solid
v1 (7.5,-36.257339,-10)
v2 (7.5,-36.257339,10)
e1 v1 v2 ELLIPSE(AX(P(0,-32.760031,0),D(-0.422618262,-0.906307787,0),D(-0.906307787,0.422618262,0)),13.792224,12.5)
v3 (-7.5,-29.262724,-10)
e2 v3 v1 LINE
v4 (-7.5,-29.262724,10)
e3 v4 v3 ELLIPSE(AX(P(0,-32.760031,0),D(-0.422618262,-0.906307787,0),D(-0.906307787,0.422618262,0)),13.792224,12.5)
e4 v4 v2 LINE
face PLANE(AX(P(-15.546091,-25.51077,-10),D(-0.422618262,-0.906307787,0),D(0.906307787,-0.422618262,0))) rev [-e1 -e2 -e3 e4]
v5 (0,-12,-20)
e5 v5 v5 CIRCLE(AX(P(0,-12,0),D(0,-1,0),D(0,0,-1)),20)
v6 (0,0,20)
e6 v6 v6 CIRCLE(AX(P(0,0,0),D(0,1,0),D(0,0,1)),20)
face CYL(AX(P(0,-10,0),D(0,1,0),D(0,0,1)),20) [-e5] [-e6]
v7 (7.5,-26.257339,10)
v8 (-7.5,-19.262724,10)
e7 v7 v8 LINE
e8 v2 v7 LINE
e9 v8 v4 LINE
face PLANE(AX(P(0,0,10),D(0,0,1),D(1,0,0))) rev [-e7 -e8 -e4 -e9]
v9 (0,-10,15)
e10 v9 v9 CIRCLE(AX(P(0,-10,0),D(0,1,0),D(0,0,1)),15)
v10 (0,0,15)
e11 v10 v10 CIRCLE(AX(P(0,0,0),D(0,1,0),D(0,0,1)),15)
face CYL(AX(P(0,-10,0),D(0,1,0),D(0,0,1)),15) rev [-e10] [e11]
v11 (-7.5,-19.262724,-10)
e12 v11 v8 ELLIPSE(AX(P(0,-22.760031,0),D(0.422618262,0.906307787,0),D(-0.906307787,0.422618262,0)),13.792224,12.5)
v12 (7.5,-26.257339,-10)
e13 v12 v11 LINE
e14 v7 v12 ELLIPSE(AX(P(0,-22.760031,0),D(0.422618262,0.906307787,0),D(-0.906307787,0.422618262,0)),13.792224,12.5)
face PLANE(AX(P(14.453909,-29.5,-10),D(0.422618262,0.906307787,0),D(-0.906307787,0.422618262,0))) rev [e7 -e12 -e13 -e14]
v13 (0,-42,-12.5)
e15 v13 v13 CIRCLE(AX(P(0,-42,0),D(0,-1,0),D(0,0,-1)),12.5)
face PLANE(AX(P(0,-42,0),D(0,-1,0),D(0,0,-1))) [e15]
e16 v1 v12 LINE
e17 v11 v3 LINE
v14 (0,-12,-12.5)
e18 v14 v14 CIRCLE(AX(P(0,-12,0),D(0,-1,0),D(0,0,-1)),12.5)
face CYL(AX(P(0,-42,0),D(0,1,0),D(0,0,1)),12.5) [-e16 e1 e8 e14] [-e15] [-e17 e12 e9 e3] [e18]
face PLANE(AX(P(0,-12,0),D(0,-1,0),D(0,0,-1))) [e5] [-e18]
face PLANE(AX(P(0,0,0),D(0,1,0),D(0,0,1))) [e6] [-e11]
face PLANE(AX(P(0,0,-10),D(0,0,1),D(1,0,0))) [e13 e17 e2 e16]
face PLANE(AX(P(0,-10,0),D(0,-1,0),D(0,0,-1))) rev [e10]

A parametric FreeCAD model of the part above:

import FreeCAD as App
import Part
import Sketcher
Q = App.Units.Quantity


def add_polygon(sketch, points):
    """Adds a closed chain of lines whose ends are joined by coincident constraints."""
    first, n = sketch.GeometryCount, len(points)
    for a, b in zip(points, points[1:] + points[:1]):
        sketch.addGeometry(Part.LineSegment(App.Vector(*a, 0), App.Vector(*b, 0)), False)
    for i in range(n):
        sketch.addConstraint(Sketcher.Constraint("Coincident", first + i, 2, first + (i + 1) % n, 1))

doc = App.newDocument("Part")
body = doc.addObject("PartDesign::Body", "Body")

# Sketch on XZ plane
sketch1 = body.newObject("Sketcher::SketchObject", "Sketch")
sketch1.AttachmentSupport = (doc.getObject("XZ_Plane"), [""])
sketch1.MapMode = "FlatFace"
sketch1.addGeometry([
    Part.Circle(App.Vector(0, 0, 0), App.Vector(0, 0, 1), 20),
    Part.Circle(App.Vector(0, 0, 0), App.Vector(0, 0, 1), 15),
], False)
sketch1.addConstraint([
    Sketcher.Constraint("Coincident", 0, 3, -1, 1),
    Sketcher.Constraint("Coincident", 1, 3, -1, 1),
    Sketcher.Constraint("Diameter", 0, Q("40 mm")),
    Sketcher.Constraint("Diameter", 1, Q("30 mm")),
])
pad1 = body.newObject("PartDesign::Pad", "Pad")
pad1.Profile = sketch1
pad1.Length = 10

# Sketch on XZ plane
sketch2 = body.newObject("Sketcher::SketchObject", "Sketch001")
sketch2.AttachmentSupport = (doc.getObject("XZ_Plane"), [""])
sketch2.MapMode = "FlatFace"
sketch2.AttachmentOffset = App.Placement(App.Vector(0, 0, 10), App.Rotation())
sketch2.addGeometry(Part.Circle(App.Vector(0, 0, 0), App.Vector(0, 0, 1), 20), False)
sketch2.addConstraint([
    Sketcher.Constraint("Coincident", 0, 3, -1, 1),
    Sketcher.Constraint("Diameter", 0, Q("40 mm")),
])
pad2 = body.newObject("PartDesign::Pad", "Pad001")
pad2.Profile = sketch2
pad2.Length = 2

# Sketch on XZ plane
sketch3 = body.newObject("Sketcher::SketchObject", "Sketch002")
sketch3.AttachmentSupport = (doc.getObject("XZ_Plane"), [""])
sketch3.MapMode = "FlatFace"
sketch3.AttachmentOffset = App.Placement(App.Vector(0, 0, 12), App.Rotation())
sketch3.addGeometry(Part.Circle(App.Vector(0, 0, 0), App.Vector(0, 0, 1), 12), False)
sketch3.addConstraint([
    Sketcher.Constraint("Coincident", 0, 3, -1, 1),
    Sketcher.Constraint("Diameter", 0, Q("25 mm")),
])
pad3 = body.newObject("PartDesign::Pad", "Pad002")
pad3.Profile = sketch3
pad3.Length = 30

# Sketch on XY plane
sketch4 = body.newObject("Sketcher::SketchObject", "Sketch003")
sketch4.AttachmentSupport = (doc.getObject("XY_Plane"), [""])
sketch4.MapMode = "FlatFace"
add_polygon(sketch4, [(-16, -16), (-16, -26), (14, -40), (14, -30)])  # lines 0-3
sketch4.addConstraint([
    Sketcher.Constraint("Vertical", 0),
    Sketcher.Constraint("Vertical", 2),
    Sketcher.Constraint("Parallel", 1, 3),
    Sketcher.Constraint("DistanceY", 0, 2, 0, 1, Q("10 mm")),
    Sketcher.Constraint("Angle", 1, Q("-25 deg")),
    Sketcher.Constraint("DistanceX", 0, 2, 1, 2, Q("30 mm")),
    Sketcher.Constraint("DistanceY", 1, 2, -1, 1, Q("39.5 mm")),
    Sketcher.Constraint("DistanceX", 0, 2, -1, 1, Q("15.546091 mm")),
])
pocket1 = body.newObject("PartDesign::Pocket", "Pocket")
pocket1.Profile = sketch4
pocket1.Length = 20
pocket1.Midplane = True

doc.recompute()
